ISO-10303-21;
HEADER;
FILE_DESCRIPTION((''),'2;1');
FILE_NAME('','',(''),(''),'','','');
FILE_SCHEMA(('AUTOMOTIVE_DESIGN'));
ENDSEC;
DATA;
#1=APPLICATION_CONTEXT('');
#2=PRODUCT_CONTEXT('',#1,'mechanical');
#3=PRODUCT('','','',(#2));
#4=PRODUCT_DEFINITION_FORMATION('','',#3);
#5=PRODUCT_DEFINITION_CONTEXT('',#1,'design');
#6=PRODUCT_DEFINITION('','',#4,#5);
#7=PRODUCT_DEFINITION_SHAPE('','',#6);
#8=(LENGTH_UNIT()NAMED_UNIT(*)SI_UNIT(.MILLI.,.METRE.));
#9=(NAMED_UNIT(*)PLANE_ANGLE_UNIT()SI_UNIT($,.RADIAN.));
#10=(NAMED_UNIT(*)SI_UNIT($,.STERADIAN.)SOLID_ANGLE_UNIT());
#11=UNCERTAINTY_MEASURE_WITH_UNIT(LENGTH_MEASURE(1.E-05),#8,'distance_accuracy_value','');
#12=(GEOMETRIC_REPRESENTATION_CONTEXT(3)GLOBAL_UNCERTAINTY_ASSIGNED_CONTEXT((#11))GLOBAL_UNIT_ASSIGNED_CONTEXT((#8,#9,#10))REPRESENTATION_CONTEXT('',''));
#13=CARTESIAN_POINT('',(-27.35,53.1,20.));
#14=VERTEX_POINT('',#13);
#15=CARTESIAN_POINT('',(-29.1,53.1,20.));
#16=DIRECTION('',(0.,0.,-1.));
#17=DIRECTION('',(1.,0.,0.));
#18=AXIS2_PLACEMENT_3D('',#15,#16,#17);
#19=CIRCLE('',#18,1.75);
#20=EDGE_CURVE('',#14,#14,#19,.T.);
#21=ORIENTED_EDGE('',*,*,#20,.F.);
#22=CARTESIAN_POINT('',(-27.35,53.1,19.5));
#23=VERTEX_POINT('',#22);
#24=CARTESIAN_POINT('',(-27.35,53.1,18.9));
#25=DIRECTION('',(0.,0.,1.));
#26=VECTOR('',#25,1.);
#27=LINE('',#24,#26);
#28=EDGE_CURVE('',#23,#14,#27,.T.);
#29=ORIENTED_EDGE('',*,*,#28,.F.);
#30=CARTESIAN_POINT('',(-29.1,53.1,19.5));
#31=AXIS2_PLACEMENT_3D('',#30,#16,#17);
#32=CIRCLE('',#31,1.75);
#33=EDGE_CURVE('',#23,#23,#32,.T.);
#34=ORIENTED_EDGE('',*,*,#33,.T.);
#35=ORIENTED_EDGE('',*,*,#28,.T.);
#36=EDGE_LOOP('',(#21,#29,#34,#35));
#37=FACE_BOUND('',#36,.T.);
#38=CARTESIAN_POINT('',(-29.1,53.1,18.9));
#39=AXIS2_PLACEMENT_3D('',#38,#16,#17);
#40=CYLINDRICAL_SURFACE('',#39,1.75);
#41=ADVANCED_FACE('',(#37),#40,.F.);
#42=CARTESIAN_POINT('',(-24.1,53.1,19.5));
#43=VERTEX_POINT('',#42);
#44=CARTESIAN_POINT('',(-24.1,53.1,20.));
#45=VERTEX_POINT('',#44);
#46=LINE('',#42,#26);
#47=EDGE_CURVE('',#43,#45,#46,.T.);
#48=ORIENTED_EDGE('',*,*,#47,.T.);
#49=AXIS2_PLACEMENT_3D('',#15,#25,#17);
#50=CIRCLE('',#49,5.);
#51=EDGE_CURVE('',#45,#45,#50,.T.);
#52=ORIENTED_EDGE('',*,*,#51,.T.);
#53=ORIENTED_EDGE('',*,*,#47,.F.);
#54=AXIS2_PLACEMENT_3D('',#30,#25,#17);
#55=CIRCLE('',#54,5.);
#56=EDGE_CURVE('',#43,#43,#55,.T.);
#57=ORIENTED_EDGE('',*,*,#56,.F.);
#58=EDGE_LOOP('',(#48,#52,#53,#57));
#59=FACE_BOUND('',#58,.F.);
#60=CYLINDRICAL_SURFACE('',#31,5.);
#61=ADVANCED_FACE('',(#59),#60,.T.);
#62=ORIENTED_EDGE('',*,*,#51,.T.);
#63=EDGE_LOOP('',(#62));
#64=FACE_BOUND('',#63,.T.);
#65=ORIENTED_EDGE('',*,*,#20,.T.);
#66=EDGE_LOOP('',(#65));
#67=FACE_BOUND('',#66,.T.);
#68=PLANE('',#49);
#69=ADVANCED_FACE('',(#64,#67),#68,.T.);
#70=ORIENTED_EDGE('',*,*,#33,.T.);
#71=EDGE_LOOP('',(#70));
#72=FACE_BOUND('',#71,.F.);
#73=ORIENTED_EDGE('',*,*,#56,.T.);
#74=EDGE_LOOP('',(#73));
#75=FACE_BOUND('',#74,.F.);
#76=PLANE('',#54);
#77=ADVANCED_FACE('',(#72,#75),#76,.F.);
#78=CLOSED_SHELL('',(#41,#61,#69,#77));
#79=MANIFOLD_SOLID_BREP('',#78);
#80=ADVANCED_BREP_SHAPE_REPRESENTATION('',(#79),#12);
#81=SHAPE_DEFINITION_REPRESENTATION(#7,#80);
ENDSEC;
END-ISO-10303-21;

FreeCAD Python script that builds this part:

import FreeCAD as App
import Part
import Sketcher

V = App.Vector

doc = App.newDocument("Part")
body = doc.addObject("PartDesign::Body", "Body")

# Sketch on XY plane
sketch1 = body.newObject("Sketcher::SketchObject", "Sketch")
sketch1.AttachmentSupport = (doc.getObject("XY_Plane"), [""])
sketch1.MapMode = "FlatFace"
sketch1.AttachmentOffset = App.Placement(V(0, 0, 24.6), App.Rotation())
sketch1.addGeometry(Part.Circle(V(-29.1, 53.1, 0), V(0, 0, 1), 1.8), False)
sketch1.addConstraint(Sketcher.Constraint("Diameter", 0, 3.5))
sketch1.addConstraint(Sketcher.Constraint("DistanceX", 0, 3, -1, 1, 29.1))
sketch1.addConstraint(Sketcher.Constraint("DistanceY", -1, 1, 0, 3, 53.1))
pad1 = body.newObject("PartDesign::Pad", "Pad")
pad1.Profile = sketch1
pad1.Length = 1.5
body2 = doc.addObject("PartDesign::Body", "Body001")

# Sketch on XY plane
sketch2 = body2.newObject("Sketcher::SketchObject", "Sketch001")
sketch2.AttachmentSupport = (doc.getObject("XY_Plane001"), [""])
sketch2.MapMode = "FlatFace"
sketch2.AttachmentOffset = App.Placement(V(0, 0, 25.2), App.Rotation())
sketch2.addGeometry(Part.Circle(V(-29, 53, 0), V(0, 0, 1), 5), False)
sketch2.addConstraint(Sketcher.Constraint("Diameter", 0, 10.0))
sketch2.addConstraint(Sketcher.Constraint("DistanceX", 0, 3, -1, 1, 29.1))
sketch2.addConstraint(Sketcher.Constraint("DistanceY", -1, 1, 0, 3, 53.1))
pad2 = body2.newObject("PartDesign::Pad", "Pad001")
pad2.Profile = sketch2
pad2.Length = 0.5
doc.recompute()

boolean = body2.newObject("PartDesign::Boolean", "Boolean")
boolean.Type = "Cut"
boolean.addObjects([body])
body3 = doc.addObject("PartDesign::Body", "Body002")
doc.recompute()

body2.Placement = App.Placement(V(0, 0, -5.7), App.Rotation(V(0, 0, 1), 0))
boolean2 = body3.newObject("PartDesign::Boolean", "Boolean001")
boolean2.Type = "Fuse"
boolean2.addObjects([body2])

doc.recompute()
